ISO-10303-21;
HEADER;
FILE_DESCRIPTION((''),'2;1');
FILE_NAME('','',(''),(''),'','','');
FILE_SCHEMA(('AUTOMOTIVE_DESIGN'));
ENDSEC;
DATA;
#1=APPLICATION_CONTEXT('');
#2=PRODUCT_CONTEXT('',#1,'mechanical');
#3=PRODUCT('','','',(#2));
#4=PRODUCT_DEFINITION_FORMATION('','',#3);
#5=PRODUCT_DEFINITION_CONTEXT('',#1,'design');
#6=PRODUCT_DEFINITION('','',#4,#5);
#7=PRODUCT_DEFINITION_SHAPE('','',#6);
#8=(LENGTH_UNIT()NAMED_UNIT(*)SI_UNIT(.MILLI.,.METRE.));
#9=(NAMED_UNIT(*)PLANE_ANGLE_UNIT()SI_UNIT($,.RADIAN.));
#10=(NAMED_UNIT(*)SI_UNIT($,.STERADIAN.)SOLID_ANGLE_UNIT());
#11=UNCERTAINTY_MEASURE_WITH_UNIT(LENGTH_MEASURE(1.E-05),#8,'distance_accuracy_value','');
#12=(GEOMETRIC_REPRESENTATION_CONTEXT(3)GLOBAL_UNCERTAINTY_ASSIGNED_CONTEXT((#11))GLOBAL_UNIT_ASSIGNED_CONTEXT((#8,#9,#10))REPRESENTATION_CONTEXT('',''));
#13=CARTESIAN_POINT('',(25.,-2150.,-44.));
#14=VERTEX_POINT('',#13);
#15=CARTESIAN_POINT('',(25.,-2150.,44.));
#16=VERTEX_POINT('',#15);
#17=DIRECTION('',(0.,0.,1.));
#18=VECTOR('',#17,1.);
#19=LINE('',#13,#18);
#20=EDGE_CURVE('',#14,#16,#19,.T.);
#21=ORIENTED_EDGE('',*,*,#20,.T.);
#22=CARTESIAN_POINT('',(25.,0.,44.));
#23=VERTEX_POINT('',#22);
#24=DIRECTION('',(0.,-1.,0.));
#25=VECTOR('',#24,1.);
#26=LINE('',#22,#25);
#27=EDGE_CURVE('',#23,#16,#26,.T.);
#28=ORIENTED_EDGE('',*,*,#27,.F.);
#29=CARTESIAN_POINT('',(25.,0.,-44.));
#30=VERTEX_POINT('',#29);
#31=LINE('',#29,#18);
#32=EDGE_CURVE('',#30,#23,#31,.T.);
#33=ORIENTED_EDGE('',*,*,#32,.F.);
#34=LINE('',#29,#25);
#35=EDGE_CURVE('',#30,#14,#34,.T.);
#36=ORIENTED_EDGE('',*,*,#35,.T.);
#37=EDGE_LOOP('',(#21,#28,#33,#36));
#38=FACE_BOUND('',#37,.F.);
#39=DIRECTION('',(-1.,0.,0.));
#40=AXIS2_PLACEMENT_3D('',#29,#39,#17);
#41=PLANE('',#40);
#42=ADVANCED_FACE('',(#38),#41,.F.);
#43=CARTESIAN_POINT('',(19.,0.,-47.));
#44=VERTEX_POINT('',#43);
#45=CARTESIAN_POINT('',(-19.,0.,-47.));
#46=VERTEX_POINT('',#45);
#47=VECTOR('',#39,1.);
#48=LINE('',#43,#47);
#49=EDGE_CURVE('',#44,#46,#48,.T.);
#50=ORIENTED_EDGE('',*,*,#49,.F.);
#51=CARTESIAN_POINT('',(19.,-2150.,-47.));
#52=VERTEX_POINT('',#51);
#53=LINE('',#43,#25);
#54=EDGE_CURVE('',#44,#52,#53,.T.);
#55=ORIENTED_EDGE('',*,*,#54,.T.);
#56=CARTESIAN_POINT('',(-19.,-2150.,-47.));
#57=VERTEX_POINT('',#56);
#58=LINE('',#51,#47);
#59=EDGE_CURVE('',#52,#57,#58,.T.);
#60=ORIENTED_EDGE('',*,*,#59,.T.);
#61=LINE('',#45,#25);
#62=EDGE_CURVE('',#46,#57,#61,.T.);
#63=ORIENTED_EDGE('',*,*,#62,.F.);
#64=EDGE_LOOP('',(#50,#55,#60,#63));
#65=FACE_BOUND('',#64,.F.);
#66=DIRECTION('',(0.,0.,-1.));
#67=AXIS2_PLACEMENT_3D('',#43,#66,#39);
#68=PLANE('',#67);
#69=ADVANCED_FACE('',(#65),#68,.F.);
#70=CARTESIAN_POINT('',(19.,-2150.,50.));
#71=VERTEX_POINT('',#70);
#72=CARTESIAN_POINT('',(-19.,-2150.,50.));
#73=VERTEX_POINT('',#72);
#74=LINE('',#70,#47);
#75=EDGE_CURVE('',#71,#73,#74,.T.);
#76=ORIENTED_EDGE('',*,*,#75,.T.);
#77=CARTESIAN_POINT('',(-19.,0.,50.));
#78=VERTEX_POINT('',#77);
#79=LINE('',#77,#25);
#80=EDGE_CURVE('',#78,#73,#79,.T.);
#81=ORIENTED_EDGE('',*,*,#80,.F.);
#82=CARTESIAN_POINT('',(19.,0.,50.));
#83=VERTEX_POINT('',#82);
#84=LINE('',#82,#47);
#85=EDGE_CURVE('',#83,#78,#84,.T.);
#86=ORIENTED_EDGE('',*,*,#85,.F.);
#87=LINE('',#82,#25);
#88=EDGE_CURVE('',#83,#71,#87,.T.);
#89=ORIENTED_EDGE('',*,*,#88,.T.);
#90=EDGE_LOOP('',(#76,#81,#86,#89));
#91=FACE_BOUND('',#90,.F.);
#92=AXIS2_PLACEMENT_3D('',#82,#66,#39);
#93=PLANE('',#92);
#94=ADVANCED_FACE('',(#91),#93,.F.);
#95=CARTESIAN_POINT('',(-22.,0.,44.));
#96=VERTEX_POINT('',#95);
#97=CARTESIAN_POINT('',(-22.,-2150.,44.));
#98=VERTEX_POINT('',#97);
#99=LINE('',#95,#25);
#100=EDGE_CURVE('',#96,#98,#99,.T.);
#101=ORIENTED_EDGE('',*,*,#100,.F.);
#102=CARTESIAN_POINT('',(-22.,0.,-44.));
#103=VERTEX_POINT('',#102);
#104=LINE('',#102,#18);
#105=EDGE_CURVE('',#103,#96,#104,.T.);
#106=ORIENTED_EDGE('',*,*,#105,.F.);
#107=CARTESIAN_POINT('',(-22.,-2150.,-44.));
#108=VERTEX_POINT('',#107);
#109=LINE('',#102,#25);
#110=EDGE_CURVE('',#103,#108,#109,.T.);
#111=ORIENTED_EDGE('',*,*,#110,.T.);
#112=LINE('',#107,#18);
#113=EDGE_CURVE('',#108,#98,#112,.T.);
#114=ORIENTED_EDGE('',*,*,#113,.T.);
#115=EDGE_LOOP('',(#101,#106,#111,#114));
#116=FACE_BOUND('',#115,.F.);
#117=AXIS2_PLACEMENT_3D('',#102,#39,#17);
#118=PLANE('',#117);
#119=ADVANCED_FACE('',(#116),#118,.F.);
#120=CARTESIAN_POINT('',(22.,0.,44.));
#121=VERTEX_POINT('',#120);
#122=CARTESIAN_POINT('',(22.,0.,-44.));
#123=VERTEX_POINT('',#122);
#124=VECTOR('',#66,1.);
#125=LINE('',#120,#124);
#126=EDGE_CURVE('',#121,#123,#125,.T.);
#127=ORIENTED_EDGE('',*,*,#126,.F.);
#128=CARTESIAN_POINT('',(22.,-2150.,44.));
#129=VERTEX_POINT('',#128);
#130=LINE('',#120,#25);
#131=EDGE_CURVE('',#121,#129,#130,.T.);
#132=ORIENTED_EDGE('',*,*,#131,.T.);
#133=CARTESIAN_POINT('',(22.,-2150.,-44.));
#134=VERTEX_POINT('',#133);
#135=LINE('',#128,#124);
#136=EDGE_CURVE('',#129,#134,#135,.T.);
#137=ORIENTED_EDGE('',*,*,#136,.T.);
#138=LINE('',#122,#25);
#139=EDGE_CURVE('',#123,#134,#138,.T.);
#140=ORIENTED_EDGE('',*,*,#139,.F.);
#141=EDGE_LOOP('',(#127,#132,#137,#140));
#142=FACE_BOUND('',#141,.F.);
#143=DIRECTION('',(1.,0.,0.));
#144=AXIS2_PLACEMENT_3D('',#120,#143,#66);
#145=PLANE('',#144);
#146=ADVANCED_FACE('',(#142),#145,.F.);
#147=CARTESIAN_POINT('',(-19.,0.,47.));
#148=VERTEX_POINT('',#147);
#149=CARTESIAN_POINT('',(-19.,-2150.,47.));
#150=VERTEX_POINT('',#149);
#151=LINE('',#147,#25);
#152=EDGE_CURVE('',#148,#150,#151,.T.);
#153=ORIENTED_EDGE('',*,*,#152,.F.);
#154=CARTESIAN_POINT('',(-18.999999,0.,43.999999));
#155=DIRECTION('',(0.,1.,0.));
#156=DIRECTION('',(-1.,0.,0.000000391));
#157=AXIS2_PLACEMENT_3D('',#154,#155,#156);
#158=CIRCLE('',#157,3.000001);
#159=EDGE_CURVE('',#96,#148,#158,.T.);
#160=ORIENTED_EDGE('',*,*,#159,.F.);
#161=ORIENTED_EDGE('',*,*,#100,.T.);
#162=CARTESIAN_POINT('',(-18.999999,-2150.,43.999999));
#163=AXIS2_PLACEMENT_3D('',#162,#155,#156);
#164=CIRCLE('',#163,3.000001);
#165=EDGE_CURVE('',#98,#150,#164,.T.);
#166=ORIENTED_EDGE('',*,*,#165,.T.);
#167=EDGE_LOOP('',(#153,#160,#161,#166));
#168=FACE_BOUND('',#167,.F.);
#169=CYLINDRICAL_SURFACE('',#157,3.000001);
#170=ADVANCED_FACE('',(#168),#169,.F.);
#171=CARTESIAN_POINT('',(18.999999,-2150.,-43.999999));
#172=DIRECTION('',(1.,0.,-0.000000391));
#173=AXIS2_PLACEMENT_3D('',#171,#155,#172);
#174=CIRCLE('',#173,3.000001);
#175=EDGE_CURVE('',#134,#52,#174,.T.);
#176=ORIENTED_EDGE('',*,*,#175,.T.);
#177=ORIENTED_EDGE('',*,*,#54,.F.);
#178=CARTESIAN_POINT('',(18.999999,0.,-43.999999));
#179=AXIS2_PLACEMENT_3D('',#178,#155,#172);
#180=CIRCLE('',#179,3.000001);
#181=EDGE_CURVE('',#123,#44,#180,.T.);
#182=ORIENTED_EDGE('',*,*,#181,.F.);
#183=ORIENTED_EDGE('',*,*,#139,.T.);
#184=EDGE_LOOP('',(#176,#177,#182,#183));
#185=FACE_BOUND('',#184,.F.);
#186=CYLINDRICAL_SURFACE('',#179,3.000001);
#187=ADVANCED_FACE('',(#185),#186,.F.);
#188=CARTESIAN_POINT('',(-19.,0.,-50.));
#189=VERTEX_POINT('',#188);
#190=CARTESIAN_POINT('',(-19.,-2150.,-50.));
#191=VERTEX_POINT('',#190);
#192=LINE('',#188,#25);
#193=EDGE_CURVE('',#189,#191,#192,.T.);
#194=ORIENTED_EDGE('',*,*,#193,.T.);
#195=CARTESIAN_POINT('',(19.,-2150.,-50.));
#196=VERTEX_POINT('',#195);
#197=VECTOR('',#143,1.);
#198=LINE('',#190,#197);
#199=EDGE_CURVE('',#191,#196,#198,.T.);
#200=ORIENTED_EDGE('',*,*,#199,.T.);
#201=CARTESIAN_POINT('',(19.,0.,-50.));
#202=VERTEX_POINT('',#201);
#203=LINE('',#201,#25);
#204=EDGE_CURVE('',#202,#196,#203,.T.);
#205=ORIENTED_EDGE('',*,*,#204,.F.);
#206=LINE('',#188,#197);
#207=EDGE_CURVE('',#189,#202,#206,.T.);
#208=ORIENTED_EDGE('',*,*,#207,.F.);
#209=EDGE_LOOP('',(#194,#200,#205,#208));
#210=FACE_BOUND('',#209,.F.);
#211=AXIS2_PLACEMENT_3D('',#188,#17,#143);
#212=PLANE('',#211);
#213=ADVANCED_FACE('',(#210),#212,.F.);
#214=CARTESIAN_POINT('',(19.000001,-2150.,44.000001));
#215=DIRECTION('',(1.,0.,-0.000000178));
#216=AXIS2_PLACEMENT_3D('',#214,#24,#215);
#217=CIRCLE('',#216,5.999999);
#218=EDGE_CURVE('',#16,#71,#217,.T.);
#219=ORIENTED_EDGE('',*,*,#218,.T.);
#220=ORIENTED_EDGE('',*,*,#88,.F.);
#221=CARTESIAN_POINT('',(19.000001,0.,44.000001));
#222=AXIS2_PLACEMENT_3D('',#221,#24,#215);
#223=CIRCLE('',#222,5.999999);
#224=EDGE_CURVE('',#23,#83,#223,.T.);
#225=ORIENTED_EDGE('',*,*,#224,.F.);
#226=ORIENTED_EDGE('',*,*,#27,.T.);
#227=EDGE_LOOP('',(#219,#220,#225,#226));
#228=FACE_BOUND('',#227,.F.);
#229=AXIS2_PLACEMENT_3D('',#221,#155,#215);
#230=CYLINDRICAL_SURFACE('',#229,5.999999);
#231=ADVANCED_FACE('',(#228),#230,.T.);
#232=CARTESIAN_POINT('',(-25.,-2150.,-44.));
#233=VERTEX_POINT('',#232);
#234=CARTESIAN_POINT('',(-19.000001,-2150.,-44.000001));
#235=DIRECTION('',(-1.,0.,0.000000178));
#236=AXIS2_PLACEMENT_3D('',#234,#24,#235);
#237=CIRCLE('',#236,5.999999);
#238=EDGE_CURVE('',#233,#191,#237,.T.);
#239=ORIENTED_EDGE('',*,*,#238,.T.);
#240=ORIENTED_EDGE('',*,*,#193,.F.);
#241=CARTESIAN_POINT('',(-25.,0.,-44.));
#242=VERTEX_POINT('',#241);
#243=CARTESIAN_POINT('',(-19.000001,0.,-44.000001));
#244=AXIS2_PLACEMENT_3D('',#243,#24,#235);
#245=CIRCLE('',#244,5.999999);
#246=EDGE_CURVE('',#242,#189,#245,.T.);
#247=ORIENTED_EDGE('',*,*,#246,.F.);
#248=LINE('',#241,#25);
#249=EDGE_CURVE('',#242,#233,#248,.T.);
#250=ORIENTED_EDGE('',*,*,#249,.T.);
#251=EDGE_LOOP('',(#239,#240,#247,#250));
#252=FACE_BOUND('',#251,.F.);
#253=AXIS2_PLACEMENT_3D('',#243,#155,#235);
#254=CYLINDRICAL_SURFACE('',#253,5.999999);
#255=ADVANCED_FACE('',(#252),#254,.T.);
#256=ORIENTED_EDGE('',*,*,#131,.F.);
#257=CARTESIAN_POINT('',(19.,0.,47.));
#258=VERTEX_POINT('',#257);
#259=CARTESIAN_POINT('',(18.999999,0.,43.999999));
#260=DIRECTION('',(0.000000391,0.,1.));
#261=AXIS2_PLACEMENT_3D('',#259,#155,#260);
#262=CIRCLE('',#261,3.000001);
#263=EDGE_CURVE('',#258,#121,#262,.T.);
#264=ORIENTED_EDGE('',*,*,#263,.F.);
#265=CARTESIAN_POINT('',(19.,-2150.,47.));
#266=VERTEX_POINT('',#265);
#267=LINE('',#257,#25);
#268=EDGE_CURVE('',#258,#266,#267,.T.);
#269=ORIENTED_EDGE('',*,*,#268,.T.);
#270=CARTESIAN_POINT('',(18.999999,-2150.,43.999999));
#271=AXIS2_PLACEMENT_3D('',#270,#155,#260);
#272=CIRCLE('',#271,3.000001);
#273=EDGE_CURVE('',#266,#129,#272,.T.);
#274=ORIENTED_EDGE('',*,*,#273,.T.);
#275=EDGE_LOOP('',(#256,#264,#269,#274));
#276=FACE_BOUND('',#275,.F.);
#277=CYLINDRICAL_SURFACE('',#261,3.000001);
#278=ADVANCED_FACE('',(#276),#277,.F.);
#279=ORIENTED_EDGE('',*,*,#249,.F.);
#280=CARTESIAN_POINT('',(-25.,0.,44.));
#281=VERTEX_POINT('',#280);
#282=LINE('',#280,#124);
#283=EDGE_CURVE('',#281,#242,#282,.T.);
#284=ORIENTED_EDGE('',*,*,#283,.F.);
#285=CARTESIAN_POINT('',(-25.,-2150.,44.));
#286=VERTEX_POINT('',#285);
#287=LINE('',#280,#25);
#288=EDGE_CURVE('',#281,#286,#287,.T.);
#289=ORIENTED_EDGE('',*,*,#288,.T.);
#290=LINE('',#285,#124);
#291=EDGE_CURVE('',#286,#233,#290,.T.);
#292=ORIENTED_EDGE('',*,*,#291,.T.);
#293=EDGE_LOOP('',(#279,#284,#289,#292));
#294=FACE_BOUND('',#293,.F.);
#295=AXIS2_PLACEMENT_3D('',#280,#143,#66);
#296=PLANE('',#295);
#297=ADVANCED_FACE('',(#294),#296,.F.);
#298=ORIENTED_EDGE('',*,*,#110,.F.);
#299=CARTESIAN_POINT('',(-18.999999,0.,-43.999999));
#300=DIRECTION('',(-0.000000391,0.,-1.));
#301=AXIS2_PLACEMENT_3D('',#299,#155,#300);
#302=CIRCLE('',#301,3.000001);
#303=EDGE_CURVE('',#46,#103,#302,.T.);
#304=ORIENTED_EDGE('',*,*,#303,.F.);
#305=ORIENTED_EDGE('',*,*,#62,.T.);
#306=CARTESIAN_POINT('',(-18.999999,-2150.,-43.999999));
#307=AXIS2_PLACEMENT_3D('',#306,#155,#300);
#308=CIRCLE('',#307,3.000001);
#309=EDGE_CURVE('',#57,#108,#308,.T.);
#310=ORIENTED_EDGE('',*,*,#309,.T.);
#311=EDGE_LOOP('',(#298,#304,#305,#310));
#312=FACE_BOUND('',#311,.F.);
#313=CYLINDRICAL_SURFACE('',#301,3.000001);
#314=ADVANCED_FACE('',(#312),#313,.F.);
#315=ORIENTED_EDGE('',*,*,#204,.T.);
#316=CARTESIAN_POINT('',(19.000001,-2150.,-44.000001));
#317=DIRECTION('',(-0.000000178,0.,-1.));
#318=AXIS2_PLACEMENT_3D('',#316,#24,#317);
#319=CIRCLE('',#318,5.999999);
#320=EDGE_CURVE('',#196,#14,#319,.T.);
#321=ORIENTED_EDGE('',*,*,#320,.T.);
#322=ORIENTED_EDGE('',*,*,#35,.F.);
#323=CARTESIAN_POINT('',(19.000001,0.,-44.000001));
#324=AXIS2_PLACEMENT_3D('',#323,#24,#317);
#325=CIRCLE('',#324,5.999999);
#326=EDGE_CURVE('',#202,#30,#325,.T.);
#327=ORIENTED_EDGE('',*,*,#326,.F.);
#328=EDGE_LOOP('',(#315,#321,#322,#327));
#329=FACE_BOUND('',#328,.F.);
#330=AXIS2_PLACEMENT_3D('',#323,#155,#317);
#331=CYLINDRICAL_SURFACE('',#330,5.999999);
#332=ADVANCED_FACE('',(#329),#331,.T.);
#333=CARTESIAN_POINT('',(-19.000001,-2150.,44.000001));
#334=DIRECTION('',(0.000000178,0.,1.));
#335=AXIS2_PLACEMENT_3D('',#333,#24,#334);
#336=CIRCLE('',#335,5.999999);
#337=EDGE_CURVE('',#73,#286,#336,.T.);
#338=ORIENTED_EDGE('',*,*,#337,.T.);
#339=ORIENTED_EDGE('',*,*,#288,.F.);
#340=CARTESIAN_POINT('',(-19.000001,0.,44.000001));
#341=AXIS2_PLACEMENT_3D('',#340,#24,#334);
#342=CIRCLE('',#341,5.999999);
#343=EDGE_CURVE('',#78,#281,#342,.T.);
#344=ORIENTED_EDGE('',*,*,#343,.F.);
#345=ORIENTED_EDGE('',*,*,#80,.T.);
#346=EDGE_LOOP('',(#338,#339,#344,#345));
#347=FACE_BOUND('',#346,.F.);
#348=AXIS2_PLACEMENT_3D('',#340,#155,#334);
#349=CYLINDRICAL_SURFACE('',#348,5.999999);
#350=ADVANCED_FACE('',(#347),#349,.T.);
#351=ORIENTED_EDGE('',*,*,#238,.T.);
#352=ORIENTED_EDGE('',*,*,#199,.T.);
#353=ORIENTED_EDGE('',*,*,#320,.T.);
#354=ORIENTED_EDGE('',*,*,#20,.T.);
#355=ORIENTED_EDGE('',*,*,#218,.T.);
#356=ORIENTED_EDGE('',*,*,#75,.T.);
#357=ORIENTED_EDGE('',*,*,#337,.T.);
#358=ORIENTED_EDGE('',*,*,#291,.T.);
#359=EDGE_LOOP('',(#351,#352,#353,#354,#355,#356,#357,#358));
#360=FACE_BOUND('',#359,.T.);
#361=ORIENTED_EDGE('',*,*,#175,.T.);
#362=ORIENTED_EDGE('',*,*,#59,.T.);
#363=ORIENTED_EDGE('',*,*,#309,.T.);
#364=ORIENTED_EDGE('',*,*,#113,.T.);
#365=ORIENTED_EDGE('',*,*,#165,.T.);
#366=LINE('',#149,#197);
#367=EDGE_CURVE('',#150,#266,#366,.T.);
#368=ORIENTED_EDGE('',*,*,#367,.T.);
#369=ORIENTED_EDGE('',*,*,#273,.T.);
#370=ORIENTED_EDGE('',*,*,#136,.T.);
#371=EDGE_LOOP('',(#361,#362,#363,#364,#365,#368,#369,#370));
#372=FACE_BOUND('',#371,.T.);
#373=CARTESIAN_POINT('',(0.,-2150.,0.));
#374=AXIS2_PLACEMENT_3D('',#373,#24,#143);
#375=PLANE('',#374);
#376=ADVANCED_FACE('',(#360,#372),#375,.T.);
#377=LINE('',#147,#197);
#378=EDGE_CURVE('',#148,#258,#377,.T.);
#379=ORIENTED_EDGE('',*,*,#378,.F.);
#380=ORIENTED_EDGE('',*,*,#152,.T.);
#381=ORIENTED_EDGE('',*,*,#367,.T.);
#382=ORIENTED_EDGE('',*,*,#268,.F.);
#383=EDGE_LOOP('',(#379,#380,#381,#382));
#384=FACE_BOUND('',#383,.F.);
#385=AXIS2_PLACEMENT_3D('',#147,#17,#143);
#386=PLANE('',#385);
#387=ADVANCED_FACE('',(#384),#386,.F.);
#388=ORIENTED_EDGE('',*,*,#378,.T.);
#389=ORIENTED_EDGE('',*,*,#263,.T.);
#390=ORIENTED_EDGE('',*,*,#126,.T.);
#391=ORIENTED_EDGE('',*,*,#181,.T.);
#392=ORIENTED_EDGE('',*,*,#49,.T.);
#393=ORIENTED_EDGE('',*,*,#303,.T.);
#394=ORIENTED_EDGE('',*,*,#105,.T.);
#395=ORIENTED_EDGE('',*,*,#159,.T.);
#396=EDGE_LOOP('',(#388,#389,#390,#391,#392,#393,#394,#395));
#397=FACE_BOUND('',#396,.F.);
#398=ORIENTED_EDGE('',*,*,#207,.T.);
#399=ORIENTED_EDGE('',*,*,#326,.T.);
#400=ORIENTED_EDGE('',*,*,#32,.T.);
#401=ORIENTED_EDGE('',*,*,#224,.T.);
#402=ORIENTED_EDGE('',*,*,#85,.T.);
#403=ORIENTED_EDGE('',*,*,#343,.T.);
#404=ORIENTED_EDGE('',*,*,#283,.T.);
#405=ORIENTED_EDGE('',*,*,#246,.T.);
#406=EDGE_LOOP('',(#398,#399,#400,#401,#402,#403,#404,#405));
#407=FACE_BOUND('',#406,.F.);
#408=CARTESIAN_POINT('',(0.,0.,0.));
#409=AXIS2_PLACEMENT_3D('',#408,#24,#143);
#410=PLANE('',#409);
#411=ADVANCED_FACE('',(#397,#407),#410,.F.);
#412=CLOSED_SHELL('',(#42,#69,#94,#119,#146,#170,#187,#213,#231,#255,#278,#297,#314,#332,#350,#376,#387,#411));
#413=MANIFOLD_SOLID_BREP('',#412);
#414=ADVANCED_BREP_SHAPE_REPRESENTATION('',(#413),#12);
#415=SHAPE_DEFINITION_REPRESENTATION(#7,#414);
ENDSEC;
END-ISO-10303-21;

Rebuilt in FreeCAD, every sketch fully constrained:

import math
import FreeCAD as App
import Part
import Sketcher

V = App.Vector
Q = App.Units.Quantity

doc = App.newDocument("Part")
body = doc.addObject("PartDesign::Body", "Body")

# Sketch on XZ plane
sketch1 = body.newObject("Sketcher::SketchObject", "Sketch")
sketch1.AttachmentSupport = (doc.getObject("XZ_Plane"), [""])
sketch1.MapMode = "FlatFace"
sketch1.addGeometry(Part.LineSegment(V(19, 50, 0), V(-19, 50, 0)), False)
sketch1.addGeometry(Part.ArcOfCircle(Part.Circle(V(-19, 44, 0), V(0, 0, 1), 6), math.radians(90), math.radians(180)), False)
sketch1.addGeometry(Part.LineSegment(V(-25, 44, 0), V(-25, -44, 0)), False)
sketch1.addGeometry(Part.ArcOfCircle(Part.Circle(V(-19, -44, 0), V(0, 0, 1), 6), math.radians(180), math.radians(270)), False)
sketch1.addGeometry(Part.LineSegment(V(-19, -50, 0), V(19, -50, 0)), False)
sketch1.addGeometry(Part.ArcOfCircle(Part.Circle(V(19, -44, 0), V(0, 0, 1), 6), math.radians(-90), math.radians(0)), False)
sketch1.addGeometry(Part.LineSegment(V(25, -44, 0), V(25, 44, 0)), False)
sketch1.addGeometry(Part.ArcOfCircle(Part.Circle(V(19, 44, 0), V(0, 0, 1), 6), math.radians(0), math.radians(90)), False)
sketch1.addGeometry(Part.ArcOfCircle(Part.Circle(V(-19, 44, 0), V(0, 0, 1), 3), math.radians(90), math.radians(180)), False)
sketch1.addGeometry(Part.LineSegment(V(-19, 47, 0), V(19, 47, 0)), False)
sketch1.addGeometry(Part.ArcOfCircle(Part.Circle(V(19, 44, 0), V(0, 0, 1), 3), math.radians(0), math.radians(90)), False)
sketch1.addGeometry(Part.LineSegment(V(22, 44, 0), V(22, -44, 0)), False)
sketch1.addGeometry(Part.ArcOfCircle(Part.Circle(V(19, -44, 0), V(0, 0, 1), 3), math.radians(-90), math.radians(0)), False)
sketch1.addGeometry(Part.LineSegment(V(19, -47, 0), V(-19, -47, 0)), False)
sketch1.addGeometry(Part.ArcOfCircle(Part.Circle(V(-19, -44, 0), V(0, 0, 1), 3), math.radians(-180), math.radians(-90)), False)
sketch1.addGeometry(Part.LineSegment(V(-22, -44, 0), V(-22, 44, 0)), False)
sketch1.addConstraint(Sketcher.Constraint("Tangent", 0, 2, 1, 1))
sketch1.addConstraint(Sketcher.Constraint("Tangent", 1, 2, 2, 1))
sketch1.addConstraint(Sketcher.Constraint("Tangent", 2, 2, 3, 1))
sketch1.addConstraint(Sketcher.Constraint("Tangent", 3, 2, 4, 1))
sketch1.addConstraint(Sketcher.Constraint("Tangent", 4, 2, 5, 1))
sketch1.addConstraint(Sketcher.Constraint("Tangent", 5, 2, 6, 1))
sketch1.addConstraint(Sketcher.Constraint("Tangent", 6, 2, 7, 1))
sketch1.addConstraint(Sketcher.Constraint("Tangent", 7, 2, 0, 1))
sketch1.addConstraint(Sketcher.Constraint("Tangent", 8, 1, 9, 1))
sketch1.addConstraint(Sketcher.Constraint("Tangent", 9, 2, 10, 2))
sketch1.addConstraint(Sketcher.Constraint("Tangent", 10, 1, 11, 1))
sketch1.addConstraint(Sketcher.Constraint("Tangent", 11, 2, 12, 2))
sketch1.addConstraint(Sketcher.Constraint("Tangent", 12, 1, 13, 1))
sketch1.addConstraint(Sketcher.Constraint("Tangent", 13, 2, 14, 2))
sketch1.addConstraint(Sketcher.Constraint("Tangent", 14, 1, 15, 1))
sketch1.addConstraint(Sketcher.Constraint("Tangent", 15, 2, 8, 2))
sketch1.addConstraint(Sketcher.Constraint("Horizontal", 0))
sketch1.addConstraint(Sketcher.Constraint("Vertical", 2))
sketch1.addConstraint(Sketcher.Constraint("Horizontal", 4))
sketch1.addConstraint(Sketcher.Constraint("Vertical", 6))
sketch1.addConstraint(Sketcher.Constraint("Horizontal", 9))
sketch1.addConstraint(Sketcher.Constraint("Vertical", 11))
sketch1.addConstraint(Sketcher.Constraint("Horizontal", 13))
sketch1.addConstraint(Sketcher.Constraint("Vertical", 15))
sketch1.addConstraint(Sketcher.Constraint("Coincident", 8, 3, 1, 3))
sketch1.addConstraint(Sketcher.Constraint("Coincident", 10, 3, 7, 3))
sketch1.addConstraint(Sketcher.Constraint("Coincident", 12, 3, 5, 3))
sketch1.addConstraint(Sketcher.Constraint("Equal", 1, 3))
sketch1.addConstraint(Sketcher.Constraint("Equal", 3, 5))
sketch1.addConstraint(Sketcher.Constraint("Equal", 5, 7))
sketch1.addConstraint(Sketcher.Constraint("Equal", 12, 14))
sketch1.addConstraint(Sketcher.Constraint("Symmetric", 1, 3, 5, 3, -1, 1))
sketch1.addConstraint(Sketcher.Constraint("Radius", 1, Q("5.999999 mm")))
sketch1.addConstraint(Sketcher.Constraint("Radius", 8, Q("3.000001 mm")))
sketch1.addConstraint(Sketcher.Constraint("DistanceX", 0, 2, 0, 1, Q("38 mm")))
sketch1.addConstraint(Sketcher.Constraint("DistanceY", 2, 2, 2, 1, Q("88 mm")))
pad1 = body.newObject("PartDesign::Pad", "Pad")
pad1.Profile = sketch1
pad1.Length = 2150

doc.recompute()
